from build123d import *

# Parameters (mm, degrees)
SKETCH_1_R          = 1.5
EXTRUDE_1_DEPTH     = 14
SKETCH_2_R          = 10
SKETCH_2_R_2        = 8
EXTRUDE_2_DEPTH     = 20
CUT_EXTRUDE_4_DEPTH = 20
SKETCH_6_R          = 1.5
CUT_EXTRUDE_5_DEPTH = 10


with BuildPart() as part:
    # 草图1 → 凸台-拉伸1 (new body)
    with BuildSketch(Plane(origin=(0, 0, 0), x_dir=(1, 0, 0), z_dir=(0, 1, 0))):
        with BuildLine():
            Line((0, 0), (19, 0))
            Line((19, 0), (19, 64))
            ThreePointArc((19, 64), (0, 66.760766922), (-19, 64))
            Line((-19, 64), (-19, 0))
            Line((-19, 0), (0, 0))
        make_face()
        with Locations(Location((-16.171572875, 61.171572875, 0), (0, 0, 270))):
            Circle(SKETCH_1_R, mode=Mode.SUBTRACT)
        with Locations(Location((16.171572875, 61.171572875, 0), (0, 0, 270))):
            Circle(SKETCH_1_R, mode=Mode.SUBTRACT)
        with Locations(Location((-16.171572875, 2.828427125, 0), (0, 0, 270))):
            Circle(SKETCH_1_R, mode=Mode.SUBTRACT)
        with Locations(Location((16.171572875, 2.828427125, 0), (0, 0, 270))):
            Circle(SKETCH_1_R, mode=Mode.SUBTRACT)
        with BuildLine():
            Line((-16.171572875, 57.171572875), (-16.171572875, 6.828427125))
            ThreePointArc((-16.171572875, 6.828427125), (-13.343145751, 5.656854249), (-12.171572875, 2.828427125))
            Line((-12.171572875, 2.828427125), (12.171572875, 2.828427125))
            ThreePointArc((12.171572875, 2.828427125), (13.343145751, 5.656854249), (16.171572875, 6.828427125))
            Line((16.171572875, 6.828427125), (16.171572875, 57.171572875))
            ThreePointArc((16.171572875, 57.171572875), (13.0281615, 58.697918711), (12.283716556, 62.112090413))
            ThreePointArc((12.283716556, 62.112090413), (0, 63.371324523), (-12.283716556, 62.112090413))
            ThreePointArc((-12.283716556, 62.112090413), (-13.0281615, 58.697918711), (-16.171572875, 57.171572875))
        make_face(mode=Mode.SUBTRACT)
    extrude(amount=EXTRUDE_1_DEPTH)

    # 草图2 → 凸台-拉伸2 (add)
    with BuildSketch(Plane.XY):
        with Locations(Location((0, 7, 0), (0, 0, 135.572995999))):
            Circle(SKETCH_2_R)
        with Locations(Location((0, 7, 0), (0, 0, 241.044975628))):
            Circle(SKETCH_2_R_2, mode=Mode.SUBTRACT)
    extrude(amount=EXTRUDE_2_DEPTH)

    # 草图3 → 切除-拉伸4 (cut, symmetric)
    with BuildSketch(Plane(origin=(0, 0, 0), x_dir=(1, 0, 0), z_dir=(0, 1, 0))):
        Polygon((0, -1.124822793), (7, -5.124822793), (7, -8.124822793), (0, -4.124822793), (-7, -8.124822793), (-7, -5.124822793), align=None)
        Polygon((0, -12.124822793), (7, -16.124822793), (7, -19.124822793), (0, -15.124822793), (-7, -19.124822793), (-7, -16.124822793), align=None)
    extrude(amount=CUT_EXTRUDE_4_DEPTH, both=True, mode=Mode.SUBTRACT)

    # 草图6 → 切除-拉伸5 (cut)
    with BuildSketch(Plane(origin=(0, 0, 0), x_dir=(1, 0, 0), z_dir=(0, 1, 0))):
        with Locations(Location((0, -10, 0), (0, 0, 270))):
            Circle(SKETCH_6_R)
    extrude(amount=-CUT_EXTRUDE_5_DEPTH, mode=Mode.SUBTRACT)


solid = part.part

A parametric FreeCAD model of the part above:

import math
import FreeCAD as App
import Part
import Sketcher

V = App.Vector

doc = App.newDocument("Part")
body = doc.addObject("PartDesign::Body", "Body")

# Sketch on XZ plane
sketch1 = body.newObject("Sketcher::SketchObject", "Sketch")
sketch1.AttachmentSupport = (doc.getObject("XZ_Plane"), [""])
sketch1.MapMode = "FlatFace"
sketch1.addGeometry([
    Part.LineSegment(V(19, 0, 0), V(19, -64, 0)),  # 0
    Part.ArcOfCircle(Part.Circle(V(0, 0, 0), V(0, 0, 1), 66.8), math.radians(-107), math.radians(-73)),  # 1
    Part.LineSegment(V(-19, -64, 0), V(-19, 0, 0)),  # 2
    Part.LineSegment(V(-19, 0, 0), V(19, 0, 0)),  # 3
    Part.Circle(V(-16.2, -2.8, 0), V(0, 0, 1), 1.5),  # 4
    Part.Circle(V(16.2, -2.8, 0), V(0, 0, 1), 1.5),  # 5
    Part.Circle(V(-16.2, -61.2, 0), V(0, 0, 1), 1.5),  # 6
    Part.LineSegment(V(-16.2, -6.8, 0), V(-16.2, -57.2, 0)),  # 7
    Part.ArcOfCircle(Part.Circle(V(-16.2, -61.2, 0), V(0, 0, 1), 4), math.radians(-14), math.radians(90)),  # 8
    Part.ArcOfCircle(Part.Circle(V(0, -2.8, 0), V(0, 0, 1), 60.5), math.radians(-102), math.radians(-78)),  # 9
    Part.ArcOfCircle(Part.Circle(V(16.2, -61.2, 0), V(0, 0, 1), 4), math.radians(90), math.radians(194)),  # 10
    Part.LineSegment(V(16.2, -57.2, 0), V(16.2, -6.8, 0)),  # 11
    Part.ArcOfCircle(Part.Circle(V(16.2, -2.8, 0), V(0, 0, 1), 4), math.radians(-180), math.radians(-90)),  # 12
    Part.LineSegment(V(12.2, -2.8, 0), V(-12.2, -2.8, 0)),  # 13
    Part.ArcOfCircle(Part.Circle(V(-16.2, -2.8, 0), V(0, 0, 1), 4), math.radians(-90), math.radians(0)),  # 14
    Part.Circle(V(16.2, -61.2, 0), V(0, 0, 1), 1.5),  # 15
], False)
sketch1.addConstraint([
    Sketcher.Constraint("Coincident", 0, 2, 1, 2),
    Sketcher.Constraint("Coincident", 1, 1, 2, 1),
    Sketcher.Constraint("Coincident", 2, 2, 3, 1),
    Sketcher.Constraint("Coincident", 3, 2, 0, 1),
    Sketcher.Constraint("Coincident", 7, 2, 8, 2),
    Sketcher.Constraint("Coincident", 8, 1, 9, 1),
    Sketcher.Constraint("Coincident", 9, 2, 10, 2),
    Sketcher.Constraint("Coincident", 10, 1, 11, 1),
    Sketcher.Constraint("Coincident", 11, 2, 12, 2),
    Sketcher.Constraint("Coincident", 12, 1, 13, 1),
    Sketcher.Constraint("Coincident", 13, 2, 14, 2),
    Sketcher.Constraint("Coincident", 14, 1, 7, 1),
    Sketcher.Constraint("Vertical", 0),
    Sketcher.Constraint("Vertical", 2),
    Sketcher.Constraint("Horizontal", 3),
    Sketcher.Constraint("Vertical", 7),
    Sketcher.Constraint("Vertical", 11),
    Sketcher.Constraint("Horizontal", 13),
    Sketcher.Constraint("Coincident", 1, 3, -1, 1),
    Sketcher.Constraint("Coincident", 8, 3, 6, 3),
    Sketcher.Constraint("Coincident", 12, 3, 5, 3),
    Sketcher.Constraint("Coincident", 14, 3, 4, 3),
    Sketcher.Constraint("Coincident", 15, 3, 10, 3),
    Sketcher.Constraint("Equal", 4, 5),
    Sketcher.Constraint("Equal", 5, 6),
    Sketcher.Constraint("Equal", 8, 10),
    Sketcher.Constraint("Equal", 10, 12),
    Sketcher.Constraint("Equal", 12, 14),
    Sketcher.Constraint("Equal", 6, 15),
    Sketcher.Constraint("Symmetric", 2, 2, 3, 2, -1, 1),
    Sketcher.Constraint("Symmetric", 4, 3, 5, 3, -2),
    Sketcher.Constraint("Symmetric", 6, 3, 10, 3, -2),
    Sketcher.Constraint("PointOnObject", 9, 3, -2),
    Sketcher.Constraint("Horizontal", 5, 3, 9, 3),
    Sketcher.Constraint("Horizontal", 14, 3, 12, 1),
    Sketcher.Constraint("Vertical", 4, 3, 6, 3),
    Sketcher.Constraint("Vertical", 14, 3, 7, 2),
    Sketcher.Constraint("Vertical", 15, 3, 10, 1),
    Sketcher.Constraint("Diameter", 4, 3.0),
    Sketcher.Constraint("Radius", 8, 4.0),
    Sketcher.Constraint("DistanceX", 3, 1, 3, 2, 38.0),
    Sketcher.Constraint("DistanceY", 0, 2, 0, 1, 64.0),
    Sketcher.Constraint("Radius", 9, 60.542897),
    Sketcher.Constraint("DistanceX", 13, 2, 13, 1, 24.343146),
    Sketcher.Constraint("DistanceY", 7, 2, 7, 1, 50.343146),
    Sketcher.Constraint("DistanceY", 8, 1, -1, 1, 62.11209),
])
pad1 = body.newObject("PartDesign::Pad", "Pad")
pad1.Profile = sketch1
pad1.Length = 14
pad1.Reversed = True

# Sketch on XY plane
sketch2 = body.newObject("Sketcher::SketchObject", "Sketch001")
sketch2.AttachmentSupport = (doc.getObject("XY_Plane"), [""])
sketch2.MapMode = "FlatFace"
sketch2.addGeometry([
    Part.Circle(V(0, 7, 0), V(0, 0, 1), 10),
    Part.Circle(V(0, 7, 0), V(0, 0, 1), 8),
], False)
sketch2.addConstraint([
    Sketcher.Constraint("Coincident", 1, 3, 0, 3),
    Sketcher.Constraint("PointOnObject", 0, 3, -2),
    Sketcher.Constraint("Diameter", 0, 20.0),
    Sketcher.Constraint("Diameter", 1, 16.0),
    Sketcher.Constraint("DistanceY", -1, 1, 0, 3, 7.0),
])
pad2 = body.newObject("PartDesign::Pad", "Pad001")
pad2.Profile = sketch2
pad2.Length = 20

# Sketch on XZ plane
sketch3 = body.newObject("Sketcher::SketchObject", "Sketch002")
sketch3.AttachmentSupport = (doc.getObject("XZ_Plane"), [""])
sketch3.MapMode = "FlatFace"
sketch3.addGeometry([
    Part.LineSegment(V(7, 5.1, 0), V(0, 1.1, 0)),  # 0
    Part.LineSegment(V(0, 1.1, 0), V(-7, 5.1, 0)),  # 1
    Part.LineSegment(V(-7, 5.1, 0), V(-7, 8.1, 0)),  # 2
    Part.LineSegment(V(-7, 8.1, 0), V(0, 4.1, 0)),  # 3
    Part.LineSegment(V(0, 4.1, 0), V(7, 8.1, 0)),  # 4
    Part.LineSegment(V(7, 8.1, 0), V(7, 5.1, 0)),  # 5
    Part.LineSegment(V(7, 16.1, 0), V(0, 12.1, 0)),  # 6
    Part.LineSegment(V(0, 12.1, 0), V(-7, 16.1, 0)),  # 7
    Part.LineSegment(V(-7, 16.1, 0), V(-7, 19.1, 0)),  # 8
    Part.LineSegment(V(-7, 19.1, 0), V(0, 15.1, 0)),  # 9
    Part.LineSegment(V(0, 15.1, 0), V(7, 19.1, 0)),  # 10
    Part.LineSegment(V(7, 19.1, 0), V(7, 16.1, 0)),  # 11
], False)
sketch3.addConstraint([
    Sketcher.Constraint("Coincident", 0, 2, 1, 1),
    Sketcher.Constraint("Coincident", 1, 2, 2, 1),
    Sketcher.Constraint("Coincident", 2, 2, 3, 1),
    Sketcher.Constraint("Coincident", 3, 2, 4, 1),
    Sketcher.Constraint("Coincident", 4, 2, 5, 1),
    Sketcher.Constraint("Coincident", 5, 2, 0, 1),
    Sketcher.Constraint("Coincident", 6, 2, 7, 1),
    Sketcher.Constraint("Coincident", 7, 2, 8, 1),
    Sketcher.Constraint("Coincident", 8, 2, 9, 1),
    Sketcher.Constraint("Coincident", 9, 2, 10, 1),
    Sketcher.Constraint("Coincident", 10, 2, 11, 1),
    Sketcher.Constraint("Coincident", 11, 2, 6, 1),
    Sketcher.Constraint("Vertical", 2),
    Sketcher.Constraint("Vertical", 5),
    Sketcher.Constraint("Vertical", 8),
    Sketcher.Constraint("Vertical", 11),
    Sketcher.Constraint("Symmetric", 2, 2, 4, 2, -2),
    Sketcher.Constraint("Symmetric", 8, 2, 10, 2, -2),
    Sketcher.Constraint("PointOnObject", 0, 2, -2),
    Sketcher.Constraint("PointOnObject", 3, 2, -2),
    Sketcher.Constraint("PointOnObject", 6, 2, -2),
    Sketcher.Constraint("PointOnObject", 9, 2, -2),
    Sketcher.Constraint("Parallel", 1, 3),
    Sketcher.Constraint("Parallel", 0, 4),
    Sketcher.Constraint("Parallel", 4, 6),
    Sketcher.Constraint("Parallel", 3, 7),
    Sketcher.Constraint("Parallel", 7, 9),
    Sketcher.Constraint("Vertical", 2, 2, 7, 2),
    Sketcher.Constraint("Equal", 5, 8),
    Sketcher.Constraint("DistanceY", 2, 1, 2, 2, 3.0),
    Sketcher.Constraint("DistanceX", 1, 2, -1, 1, 7.0),
    Sketcher.Constraint("DistanceY", 0, 2, 1, 2, 4.0),
    Sketcher.Constraint("DistanceY", 3, 2, 6, 2, 8.0),
    Sketcher.Constraint("DistanceY", -1, 1, 0, 2, 1.124823),
])
pocket1 = body.newObject("PartDesign::Pocket", "Pocket")
pocket1.Profile = sketch3
pocket1.Length = 40
pocket1.Midplane = True

# Sketch on XZ plane
sketch4 = body.newObject("Sketcher::SketchObject", "Sketch003")
sketch4.AttachmentSupport = (doc.getObject("XZ_Plane"), [""])
sketch4.MapMode = "FlatFace"
sketch4.addGeometry(Part.Circle(V(0, 10, 0), V(0, 0, 1), 1.5), False)
sketch4.addConstraint([
    Sketcher.Constraint("PointOnObject", 0, 3, -2),
    Sketcher.Constraint("Diameter", 0, 3.0),
    Sketcher.Constraint("DistanceY", -1, 1, 0, 3, 10.0),
])
pocket2 = body.newObject("PartDesign::Pocket", "Pocket001")
pocket2.Profile = sketch4
pocket2.Length = 10
pocket2.Reversed = True

doc.recompute()
